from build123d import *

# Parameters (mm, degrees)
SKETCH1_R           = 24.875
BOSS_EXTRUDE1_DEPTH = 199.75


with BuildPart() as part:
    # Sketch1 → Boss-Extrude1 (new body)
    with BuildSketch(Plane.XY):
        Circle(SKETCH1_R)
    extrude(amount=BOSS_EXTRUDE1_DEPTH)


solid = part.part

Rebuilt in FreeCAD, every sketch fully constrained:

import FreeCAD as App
import Part
import Sketcher

V = App.Vector
Q = App.Units.Quantity

doc = App.newDocument("Part")
body = doc.addObject("PartDesign::Body", "Body")

# Sketch on XY plane
sketch1 = doc.addObject("Sketcher::SketchObject", "Sketch")
body.addObject(sketch1)
sketch1.AttachmentSupport = (doc.XY_Plane, [""])
sketch1.MapMode = "FlatFace"
sketch1.addGeometry(Part.Circle(V(0, 0, 0), V(0, 0, 1), 25), False)
sketch1.addConstraint(Sketcher.Constraint("Coincident", 0, 3, -1, 1))
sketch1.addConstraint(Sketcher.Constraint("Diameter", 0, Q("49.75 mm")))
pad1 = doc.addObject("PartDesign::Pad", "Pad")
body.addObject(pad1)
pad1.Profile = sketch1
pad1.Length = 199.75

doc.recompute()
